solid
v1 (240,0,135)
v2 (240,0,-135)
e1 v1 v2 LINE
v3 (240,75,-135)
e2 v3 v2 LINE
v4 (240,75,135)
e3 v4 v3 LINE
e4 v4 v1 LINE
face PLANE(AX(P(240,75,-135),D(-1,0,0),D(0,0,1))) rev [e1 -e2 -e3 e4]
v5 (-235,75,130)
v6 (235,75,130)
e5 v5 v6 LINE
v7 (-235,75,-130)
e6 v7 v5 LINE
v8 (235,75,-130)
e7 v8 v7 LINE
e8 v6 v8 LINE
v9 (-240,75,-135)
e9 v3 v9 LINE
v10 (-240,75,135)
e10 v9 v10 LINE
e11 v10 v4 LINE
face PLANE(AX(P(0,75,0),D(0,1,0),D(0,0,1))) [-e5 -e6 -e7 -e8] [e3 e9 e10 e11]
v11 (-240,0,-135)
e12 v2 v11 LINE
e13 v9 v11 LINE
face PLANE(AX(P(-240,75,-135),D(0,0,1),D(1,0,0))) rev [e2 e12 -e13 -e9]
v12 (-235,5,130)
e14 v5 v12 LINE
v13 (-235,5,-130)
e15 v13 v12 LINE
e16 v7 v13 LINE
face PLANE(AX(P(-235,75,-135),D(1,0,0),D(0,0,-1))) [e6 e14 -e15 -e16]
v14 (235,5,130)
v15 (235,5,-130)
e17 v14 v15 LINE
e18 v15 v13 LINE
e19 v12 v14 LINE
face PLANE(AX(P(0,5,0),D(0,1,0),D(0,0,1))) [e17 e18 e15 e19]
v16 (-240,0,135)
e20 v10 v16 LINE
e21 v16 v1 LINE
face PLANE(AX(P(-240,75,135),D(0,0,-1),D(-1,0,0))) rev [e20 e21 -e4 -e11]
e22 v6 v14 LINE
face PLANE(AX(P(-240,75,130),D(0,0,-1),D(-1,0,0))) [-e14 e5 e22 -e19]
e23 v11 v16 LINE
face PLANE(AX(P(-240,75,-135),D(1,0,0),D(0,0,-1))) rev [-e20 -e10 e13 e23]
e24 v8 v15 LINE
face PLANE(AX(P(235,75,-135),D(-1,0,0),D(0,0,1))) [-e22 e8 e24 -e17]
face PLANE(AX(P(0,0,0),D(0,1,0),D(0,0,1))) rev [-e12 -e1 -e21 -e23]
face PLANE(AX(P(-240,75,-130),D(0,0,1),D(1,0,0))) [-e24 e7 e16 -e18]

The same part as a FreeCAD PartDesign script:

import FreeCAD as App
import Part
import Sketcher

V = App.Vector
Q = App.Units.Quantity


def faces_at(feature, points):
    """Names of the faces that lie closest to the given points."""
    faces = feature.Shape.Faces
    near = lambda p: min(range(len(faces)), key=lambda i: faces[i].distToShape(Part.Vertex(*p))[0])
    return sorted({f"Face{near(p) + 1}" for p in points})

doc = App.newDocument("Part")
params = doc.addObject("Spreadsheet::Sheet", "Params")
for row, (alias, value) in enumerate([
    ("sketch1_width", "480 mm"),
    ("sketch1_height", "270 mm"),
    ("pad1_length", "75 mm"),
    ("thickness_wall", "5 mm"),
], start=1):
    params.set(f"A{row}", alias)
    params.set(f"B{row}", "=" + value)
    params.setAlias(f"B{row}", alias)

body = doc.addObject("PartDesign::Body", "Body")

# Sketch on XZ plane
sketch1 = doc.addObject("Sketcher::SketchObject", "Sketch")
body.addObject(sketch1)
sketch1.AttachmentSupport = (doc.XZ_Plane, [""])
sketch1.MapMode = "FlatFace"
sketch1.addGeometry([
    Part.LineSegment(V(-240, -135, 0), V(-240, 135, 0)),
    Part.LineSegment(V(-240, 135, 0), V(240, 135, 0)),
    Part.LineSegment(V(240, 135, 0), V(240, -135, 0)),
    Part.LineSegment(V(240, -135, 0), V(-240, -135, 0)),
], False)
sketch1.addConstraint([
    Sketcher.Constraint("Coincident", 0, 2, 1, 1),
    Sketcher.Constraint("Coincident", 1, 2, 2, 1),
    Sketcher.Constraint("Coincident", 2, 2, 3, 1),
    Sketcher.Constraint("Coincident", 3, 2, 0, 1),
    Sketcher.Constraint("Vertical", 0),
    Sketcher.Constraint("Horizontal", 1),
    Sketcher.Constraint("Vertical", 2),
    Sketcher.Constraint("Horizontal", 3),
    Sketcher.Constraint("Symmetric", 0, 2, 2, 2, -1, 1),
    Sketcher.Constraint("DistanceX", 1, 1, 1, 2, Q("480 mm")),
    Sketcher.Constraint("DistanceY", 0, 1, 0, 2, Q("270 mm")),
])
sketch1.setExpression("Constraints[9]", "Params.sketch1_width")
sketch1.setExpression("Constraints[10]", "Params.sketch1_height")
pad1 = doc.addObject("PartDesign::Pad", "Pad")
body.addObject(pad1)
pad1.Profile = sketch1
pad1.setExpression("Length", "Params.pad1_length")
pad1.Reversed = True
doc.recompute()

thickness = doc.addObject("PartDesign::Thickness", "Thickness")
body.addObject(thickness)
thickness.Base = (pad1, faces_at(pad1, [(0, 75, 0)]))
thickness.setExpression("Value", "Params.thickness_wall")
thickness.Reversed = True
thickness.Join = "Intersection"

doc.recompute()
